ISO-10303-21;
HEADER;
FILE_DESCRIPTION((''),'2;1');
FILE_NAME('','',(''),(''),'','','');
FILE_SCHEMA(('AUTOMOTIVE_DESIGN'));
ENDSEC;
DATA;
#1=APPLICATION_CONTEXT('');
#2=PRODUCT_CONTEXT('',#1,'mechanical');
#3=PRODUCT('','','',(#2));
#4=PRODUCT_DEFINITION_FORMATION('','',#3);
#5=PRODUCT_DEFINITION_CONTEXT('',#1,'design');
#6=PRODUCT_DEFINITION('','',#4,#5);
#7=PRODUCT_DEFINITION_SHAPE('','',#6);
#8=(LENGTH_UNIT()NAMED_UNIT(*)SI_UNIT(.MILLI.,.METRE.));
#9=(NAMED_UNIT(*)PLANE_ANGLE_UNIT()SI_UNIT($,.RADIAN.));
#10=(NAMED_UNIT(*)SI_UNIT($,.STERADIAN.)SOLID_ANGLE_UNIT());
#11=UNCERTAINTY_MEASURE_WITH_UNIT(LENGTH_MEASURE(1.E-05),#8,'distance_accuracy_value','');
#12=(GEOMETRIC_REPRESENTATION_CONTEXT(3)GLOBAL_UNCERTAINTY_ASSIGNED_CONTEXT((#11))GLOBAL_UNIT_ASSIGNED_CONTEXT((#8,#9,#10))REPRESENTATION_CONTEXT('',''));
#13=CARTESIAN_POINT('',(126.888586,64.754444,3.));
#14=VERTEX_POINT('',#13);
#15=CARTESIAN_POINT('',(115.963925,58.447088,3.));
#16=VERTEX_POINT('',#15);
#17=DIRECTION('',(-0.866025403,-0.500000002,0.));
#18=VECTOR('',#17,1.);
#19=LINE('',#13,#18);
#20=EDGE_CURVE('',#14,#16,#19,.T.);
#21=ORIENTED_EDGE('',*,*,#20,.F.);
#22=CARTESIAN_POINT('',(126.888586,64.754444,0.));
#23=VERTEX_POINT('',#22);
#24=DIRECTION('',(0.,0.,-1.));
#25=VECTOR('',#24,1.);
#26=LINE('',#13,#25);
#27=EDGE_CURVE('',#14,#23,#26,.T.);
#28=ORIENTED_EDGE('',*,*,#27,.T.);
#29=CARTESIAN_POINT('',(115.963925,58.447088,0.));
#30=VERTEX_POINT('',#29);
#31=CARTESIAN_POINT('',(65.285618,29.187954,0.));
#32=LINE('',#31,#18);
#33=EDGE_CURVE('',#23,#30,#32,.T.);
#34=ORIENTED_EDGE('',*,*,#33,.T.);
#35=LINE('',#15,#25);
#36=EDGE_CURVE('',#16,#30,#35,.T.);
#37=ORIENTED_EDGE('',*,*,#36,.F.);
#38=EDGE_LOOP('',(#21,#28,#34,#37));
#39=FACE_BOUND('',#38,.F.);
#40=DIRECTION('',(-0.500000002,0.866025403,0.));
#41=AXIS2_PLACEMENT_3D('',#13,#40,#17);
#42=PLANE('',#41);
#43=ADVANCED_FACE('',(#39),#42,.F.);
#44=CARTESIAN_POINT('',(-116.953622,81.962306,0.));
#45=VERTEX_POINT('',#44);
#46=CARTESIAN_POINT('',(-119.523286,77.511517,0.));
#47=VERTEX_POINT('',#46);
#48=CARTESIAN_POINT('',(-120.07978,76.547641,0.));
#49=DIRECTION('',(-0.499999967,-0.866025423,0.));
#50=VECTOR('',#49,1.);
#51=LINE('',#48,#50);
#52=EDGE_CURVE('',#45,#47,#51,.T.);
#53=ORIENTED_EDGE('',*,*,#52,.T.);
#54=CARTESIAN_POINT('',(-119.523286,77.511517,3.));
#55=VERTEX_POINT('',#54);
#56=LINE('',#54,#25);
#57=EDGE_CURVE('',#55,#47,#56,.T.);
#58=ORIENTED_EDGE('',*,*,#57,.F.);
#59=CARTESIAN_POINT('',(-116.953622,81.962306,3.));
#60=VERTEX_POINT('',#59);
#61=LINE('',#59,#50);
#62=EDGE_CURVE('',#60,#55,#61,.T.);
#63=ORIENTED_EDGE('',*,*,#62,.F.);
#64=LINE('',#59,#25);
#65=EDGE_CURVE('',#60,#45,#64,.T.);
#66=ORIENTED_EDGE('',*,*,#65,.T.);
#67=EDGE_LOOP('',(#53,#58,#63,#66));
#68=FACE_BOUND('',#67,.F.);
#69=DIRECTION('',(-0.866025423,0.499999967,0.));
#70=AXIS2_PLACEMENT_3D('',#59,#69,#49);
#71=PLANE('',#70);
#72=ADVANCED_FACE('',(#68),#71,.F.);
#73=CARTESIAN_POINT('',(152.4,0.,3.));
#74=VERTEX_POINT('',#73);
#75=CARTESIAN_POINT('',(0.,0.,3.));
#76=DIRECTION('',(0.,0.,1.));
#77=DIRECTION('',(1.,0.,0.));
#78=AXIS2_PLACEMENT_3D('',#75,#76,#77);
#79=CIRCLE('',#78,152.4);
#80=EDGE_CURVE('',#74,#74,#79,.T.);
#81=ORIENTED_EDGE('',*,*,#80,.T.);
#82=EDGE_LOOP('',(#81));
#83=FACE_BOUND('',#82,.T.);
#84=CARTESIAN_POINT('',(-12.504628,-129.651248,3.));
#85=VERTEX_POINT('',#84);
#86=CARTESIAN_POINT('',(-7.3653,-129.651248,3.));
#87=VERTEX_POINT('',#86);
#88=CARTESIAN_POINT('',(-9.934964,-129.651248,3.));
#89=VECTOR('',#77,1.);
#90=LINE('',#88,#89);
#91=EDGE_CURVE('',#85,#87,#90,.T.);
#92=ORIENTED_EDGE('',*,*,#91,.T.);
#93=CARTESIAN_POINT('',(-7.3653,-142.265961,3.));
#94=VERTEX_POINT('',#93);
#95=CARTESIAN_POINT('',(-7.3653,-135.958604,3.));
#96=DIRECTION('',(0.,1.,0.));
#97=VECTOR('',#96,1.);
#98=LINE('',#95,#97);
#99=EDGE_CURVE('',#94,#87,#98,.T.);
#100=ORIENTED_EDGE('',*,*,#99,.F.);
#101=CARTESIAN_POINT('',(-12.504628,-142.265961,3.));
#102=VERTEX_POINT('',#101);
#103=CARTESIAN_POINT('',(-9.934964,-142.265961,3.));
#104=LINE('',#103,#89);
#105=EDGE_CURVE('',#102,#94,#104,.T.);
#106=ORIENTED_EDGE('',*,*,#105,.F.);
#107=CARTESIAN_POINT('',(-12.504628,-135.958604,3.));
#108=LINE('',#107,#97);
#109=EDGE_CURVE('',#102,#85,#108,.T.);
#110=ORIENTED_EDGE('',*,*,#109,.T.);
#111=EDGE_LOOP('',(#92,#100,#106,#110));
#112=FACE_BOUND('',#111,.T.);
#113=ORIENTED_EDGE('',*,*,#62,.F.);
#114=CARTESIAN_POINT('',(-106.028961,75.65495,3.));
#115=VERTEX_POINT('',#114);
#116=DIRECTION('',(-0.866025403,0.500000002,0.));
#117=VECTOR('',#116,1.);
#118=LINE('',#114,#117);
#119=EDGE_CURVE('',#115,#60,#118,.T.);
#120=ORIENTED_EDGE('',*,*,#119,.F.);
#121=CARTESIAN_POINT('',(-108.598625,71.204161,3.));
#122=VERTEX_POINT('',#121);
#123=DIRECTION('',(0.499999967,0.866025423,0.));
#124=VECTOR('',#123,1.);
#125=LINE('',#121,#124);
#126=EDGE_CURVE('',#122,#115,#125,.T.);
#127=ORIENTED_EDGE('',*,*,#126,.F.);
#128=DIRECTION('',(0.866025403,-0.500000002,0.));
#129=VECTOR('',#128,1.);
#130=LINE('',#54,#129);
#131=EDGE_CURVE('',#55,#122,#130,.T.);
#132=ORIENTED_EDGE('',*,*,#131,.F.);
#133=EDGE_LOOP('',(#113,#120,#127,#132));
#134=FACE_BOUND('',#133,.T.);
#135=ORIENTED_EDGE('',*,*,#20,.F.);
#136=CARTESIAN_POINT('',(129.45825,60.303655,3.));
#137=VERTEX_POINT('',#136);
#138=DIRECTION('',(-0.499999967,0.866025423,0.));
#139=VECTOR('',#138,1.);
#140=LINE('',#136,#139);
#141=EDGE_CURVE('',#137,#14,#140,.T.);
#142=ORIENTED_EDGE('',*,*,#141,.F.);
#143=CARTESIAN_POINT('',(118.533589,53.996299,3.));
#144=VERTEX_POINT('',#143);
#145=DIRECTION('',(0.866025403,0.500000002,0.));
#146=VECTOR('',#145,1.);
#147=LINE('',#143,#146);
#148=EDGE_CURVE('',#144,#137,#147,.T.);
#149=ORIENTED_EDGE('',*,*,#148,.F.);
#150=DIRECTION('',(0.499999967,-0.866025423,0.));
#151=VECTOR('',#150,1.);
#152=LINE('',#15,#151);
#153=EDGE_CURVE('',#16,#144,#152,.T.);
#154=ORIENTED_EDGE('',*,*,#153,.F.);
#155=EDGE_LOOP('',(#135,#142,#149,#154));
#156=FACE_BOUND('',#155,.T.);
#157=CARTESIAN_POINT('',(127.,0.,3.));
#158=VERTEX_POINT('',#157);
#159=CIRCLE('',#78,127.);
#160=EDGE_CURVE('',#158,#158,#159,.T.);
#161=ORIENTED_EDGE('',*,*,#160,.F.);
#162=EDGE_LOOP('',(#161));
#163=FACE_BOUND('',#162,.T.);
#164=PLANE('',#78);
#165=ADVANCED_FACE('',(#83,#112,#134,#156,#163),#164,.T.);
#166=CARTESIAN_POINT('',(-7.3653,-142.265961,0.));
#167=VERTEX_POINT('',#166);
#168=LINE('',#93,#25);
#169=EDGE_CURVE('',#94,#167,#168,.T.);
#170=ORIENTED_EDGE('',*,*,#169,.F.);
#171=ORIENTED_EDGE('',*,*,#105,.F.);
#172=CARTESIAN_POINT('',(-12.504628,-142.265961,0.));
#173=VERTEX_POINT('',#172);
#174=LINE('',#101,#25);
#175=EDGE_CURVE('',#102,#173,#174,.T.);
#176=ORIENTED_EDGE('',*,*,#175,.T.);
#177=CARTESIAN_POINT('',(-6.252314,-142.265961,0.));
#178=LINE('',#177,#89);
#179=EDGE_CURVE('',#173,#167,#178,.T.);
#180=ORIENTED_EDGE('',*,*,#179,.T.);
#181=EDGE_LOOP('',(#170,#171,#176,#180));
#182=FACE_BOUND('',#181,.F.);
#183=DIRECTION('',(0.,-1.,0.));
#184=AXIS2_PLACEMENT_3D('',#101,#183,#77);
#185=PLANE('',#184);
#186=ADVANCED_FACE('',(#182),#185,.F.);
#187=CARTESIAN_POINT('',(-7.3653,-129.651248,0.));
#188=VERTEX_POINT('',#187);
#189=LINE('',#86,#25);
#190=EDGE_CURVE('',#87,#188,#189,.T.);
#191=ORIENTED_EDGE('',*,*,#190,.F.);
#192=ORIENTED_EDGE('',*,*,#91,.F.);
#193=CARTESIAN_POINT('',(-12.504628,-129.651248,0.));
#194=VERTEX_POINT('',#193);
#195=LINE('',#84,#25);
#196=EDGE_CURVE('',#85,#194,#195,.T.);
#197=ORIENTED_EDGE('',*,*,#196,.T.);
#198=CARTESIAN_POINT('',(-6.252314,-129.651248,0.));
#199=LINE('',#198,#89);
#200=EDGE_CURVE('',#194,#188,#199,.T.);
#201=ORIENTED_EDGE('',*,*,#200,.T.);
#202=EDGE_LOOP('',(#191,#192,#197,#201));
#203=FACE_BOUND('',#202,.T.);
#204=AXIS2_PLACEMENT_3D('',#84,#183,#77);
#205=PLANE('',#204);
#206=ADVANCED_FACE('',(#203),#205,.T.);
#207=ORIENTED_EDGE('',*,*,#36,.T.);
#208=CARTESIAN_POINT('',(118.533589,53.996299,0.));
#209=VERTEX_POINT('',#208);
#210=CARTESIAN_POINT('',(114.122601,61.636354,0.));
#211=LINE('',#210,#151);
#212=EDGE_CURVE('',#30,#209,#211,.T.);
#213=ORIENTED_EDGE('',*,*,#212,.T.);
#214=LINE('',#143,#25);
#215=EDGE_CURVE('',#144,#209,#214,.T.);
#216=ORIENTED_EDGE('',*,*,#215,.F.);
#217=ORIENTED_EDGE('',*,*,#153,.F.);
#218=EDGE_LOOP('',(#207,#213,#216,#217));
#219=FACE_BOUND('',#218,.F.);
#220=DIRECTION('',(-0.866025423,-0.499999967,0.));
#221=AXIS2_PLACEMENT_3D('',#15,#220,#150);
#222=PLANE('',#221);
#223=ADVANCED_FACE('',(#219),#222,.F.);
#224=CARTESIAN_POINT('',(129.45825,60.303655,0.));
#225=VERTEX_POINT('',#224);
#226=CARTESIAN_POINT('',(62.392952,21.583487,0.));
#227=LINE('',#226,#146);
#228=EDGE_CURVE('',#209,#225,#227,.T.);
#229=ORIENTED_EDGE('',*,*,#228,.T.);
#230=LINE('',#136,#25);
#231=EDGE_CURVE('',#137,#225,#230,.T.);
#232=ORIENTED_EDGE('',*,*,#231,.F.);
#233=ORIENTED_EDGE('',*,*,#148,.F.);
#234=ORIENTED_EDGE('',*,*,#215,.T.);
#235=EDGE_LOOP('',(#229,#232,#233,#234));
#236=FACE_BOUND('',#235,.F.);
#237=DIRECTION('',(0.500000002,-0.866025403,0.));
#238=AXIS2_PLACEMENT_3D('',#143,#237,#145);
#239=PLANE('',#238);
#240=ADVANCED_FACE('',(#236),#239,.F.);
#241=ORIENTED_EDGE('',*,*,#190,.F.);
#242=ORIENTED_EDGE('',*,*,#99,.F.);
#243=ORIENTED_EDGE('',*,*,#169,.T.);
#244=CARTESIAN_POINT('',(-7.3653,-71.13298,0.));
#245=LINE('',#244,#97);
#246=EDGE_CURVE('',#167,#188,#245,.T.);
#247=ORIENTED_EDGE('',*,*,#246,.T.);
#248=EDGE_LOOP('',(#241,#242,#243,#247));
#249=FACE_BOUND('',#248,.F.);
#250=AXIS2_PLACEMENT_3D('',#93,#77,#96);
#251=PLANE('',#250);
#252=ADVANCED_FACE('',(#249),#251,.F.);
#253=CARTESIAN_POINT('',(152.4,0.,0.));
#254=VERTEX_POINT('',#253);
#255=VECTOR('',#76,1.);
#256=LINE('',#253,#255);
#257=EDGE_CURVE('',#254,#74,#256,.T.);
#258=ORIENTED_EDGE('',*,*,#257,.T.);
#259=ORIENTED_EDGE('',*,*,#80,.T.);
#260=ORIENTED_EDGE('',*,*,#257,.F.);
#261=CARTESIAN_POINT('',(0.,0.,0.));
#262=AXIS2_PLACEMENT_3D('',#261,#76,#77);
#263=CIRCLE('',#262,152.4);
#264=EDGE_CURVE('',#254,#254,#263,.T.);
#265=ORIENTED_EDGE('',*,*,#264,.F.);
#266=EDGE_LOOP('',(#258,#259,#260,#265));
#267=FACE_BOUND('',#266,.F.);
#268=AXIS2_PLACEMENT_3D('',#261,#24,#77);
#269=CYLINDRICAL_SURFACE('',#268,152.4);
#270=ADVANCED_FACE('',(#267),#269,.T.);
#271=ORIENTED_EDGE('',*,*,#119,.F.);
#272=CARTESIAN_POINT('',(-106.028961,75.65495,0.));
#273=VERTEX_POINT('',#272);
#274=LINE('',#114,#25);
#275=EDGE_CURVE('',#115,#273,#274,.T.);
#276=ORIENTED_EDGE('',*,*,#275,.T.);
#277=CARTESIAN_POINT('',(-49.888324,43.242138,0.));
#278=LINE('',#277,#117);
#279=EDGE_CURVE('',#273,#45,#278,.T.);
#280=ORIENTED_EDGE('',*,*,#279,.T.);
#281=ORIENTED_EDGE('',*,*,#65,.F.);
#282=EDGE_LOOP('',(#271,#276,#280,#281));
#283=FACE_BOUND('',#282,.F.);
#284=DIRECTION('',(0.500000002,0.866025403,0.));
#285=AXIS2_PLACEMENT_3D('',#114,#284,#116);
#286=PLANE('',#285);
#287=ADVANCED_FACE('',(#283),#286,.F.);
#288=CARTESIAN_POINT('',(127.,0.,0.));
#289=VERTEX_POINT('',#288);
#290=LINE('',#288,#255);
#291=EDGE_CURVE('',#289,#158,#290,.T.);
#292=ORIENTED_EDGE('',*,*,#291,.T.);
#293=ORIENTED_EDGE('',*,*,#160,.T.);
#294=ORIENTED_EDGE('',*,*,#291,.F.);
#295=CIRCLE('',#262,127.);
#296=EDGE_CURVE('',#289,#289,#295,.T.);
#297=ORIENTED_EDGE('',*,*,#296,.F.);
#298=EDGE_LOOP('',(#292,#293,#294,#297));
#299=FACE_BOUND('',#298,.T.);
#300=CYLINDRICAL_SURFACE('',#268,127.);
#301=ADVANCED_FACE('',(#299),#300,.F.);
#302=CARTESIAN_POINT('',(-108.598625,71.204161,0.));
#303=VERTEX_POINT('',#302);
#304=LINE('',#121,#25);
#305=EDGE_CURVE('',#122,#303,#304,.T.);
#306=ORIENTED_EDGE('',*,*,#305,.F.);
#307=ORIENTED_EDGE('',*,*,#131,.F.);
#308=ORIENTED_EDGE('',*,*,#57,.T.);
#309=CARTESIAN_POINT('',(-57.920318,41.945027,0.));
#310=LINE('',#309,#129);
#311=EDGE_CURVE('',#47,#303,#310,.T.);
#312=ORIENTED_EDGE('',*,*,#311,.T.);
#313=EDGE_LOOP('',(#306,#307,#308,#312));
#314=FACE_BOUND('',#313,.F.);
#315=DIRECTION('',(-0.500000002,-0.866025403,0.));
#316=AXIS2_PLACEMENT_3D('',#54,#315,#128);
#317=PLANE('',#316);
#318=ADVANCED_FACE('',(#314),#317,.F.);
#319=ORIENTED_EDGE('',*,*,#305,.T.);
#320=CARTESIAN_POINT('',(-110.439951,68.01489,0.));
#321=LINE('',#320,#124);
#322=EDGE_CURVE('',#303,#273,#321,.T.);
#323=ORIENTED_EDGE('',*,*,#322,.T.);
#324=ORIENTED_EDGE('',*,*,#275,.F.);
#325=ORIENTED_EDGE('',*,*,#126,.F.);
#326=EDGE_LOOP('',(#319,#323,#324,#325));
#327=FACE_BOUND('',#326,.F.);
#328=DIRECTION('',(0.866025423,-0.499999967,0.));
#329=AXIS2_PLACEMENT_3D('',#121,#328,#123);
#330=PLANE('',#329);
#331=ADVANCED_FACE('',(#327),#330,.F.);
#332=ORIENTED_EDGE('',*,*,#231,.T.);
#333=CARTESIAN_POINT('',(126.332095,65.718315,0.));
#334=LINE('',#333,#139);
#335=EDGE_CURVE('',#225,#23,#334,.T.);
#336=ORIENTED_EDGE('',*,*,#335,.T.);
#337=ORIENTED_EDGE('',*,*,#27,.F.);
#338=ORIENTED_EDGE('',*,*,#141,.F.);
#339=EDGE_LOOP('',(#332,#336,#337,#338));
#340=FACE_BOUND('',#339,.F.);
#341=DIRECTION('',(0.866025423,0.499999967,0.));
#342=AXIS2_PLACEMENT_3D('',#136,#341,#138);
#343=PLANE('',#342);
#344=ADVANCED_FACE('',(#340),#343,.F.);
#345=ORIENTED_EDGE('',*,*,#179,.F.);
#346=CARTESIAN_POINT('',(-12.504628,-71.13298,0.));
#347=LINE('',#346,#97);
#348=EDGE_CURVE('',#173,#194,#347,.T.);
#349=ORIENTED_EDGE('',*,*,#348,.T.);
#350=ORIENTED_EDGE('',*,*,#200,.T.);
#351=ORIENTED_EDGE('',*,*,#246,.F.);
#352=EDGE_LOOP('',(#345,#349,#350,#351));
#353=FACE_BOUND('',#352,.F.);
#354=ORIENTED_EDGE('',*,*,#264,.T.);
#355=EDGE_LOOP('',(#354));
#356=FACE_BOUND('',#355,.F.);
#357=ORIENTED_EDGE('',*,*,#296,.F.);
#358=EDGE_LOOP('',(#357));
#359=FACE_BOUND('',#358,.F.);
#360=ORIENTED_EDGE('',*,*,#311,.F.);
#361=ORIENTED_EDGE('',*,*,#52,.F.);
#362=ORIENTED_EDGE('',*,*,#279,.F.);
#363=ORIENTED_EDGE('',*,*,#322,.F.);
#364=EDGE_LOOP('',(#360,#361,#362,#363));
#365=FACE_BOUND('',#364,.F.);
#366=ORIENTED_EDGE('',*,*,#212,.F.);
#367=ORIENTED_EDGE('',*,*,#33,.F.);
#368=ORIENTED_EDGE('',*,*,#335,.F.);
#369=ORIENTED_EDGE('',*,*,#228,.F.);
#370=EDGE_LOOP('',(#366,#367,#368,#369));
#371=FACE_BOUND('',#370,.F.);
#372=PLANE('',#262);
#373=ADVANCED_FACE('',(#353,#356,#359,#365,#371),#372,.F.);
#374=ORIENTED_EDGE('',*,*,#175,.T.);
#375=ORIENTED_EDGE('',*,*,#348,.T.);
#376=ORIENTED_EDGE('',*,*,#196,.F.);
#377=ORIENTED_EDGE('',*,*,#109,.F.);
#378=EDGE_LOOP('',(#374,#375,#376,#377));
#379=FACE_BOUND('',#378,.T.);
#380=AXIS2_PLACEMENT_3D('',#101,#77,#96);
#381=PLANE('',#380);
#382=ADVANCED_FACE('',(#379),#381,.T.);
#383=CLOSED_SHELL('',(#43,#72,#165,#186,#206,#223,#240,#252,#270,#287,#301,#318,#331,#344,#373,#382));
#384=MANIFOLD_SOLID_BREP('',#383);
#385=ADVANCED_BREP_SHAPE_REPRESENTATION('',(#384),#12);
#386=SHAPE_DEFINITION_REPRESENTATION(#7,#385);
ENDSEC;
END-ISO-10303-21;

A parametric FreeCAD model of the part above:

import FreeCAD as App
import Part
import Sketcher
Q = App.Units.Quantity

doc = App.newDocument("Part")
body = doc.addObject("PartDesign::Body", "Body")

# Sketch on XY plane
sketch1 = doc.addObject("Sketcher::SketchObject", "Sketch")
body.addObject(sketch1)
sketch1.AttachmentSupport = (doc.XY_Plane, [""])
sketch1.MapMode = "FlatFace"
sketch1.addGeometry([
    Part.Circle(App.Vector(0, 0, 0), App.Vector(0, 0, 1), 152.4),
    Part.Circle(App.Vector(0, 0, 0), App.Vector(0, 0, 1), 127),
], False)
sketch1.addConstraint([
    Sketcher.Constraint("Coincident", 0, 3, -1, 1),
    Sketcher.Constraint("Coincident", 1, 3, -1, 1),
    Sketcher.Constraint("Diameter", 0, Q("12 in")),
    Sketcher.Constraint("Diameter", 1, Q("10 in")),
])
pad1 = doc.addObject("PartDesign::Pad", "Pad")
body.addObject(pad1)
pad1.Profile = sketch1
pad1.Length = 3

# Sketch on XY plane
sketch2 = doc.addObject("Sketcher::SketchObject", "Sketch001")
body.addObject(sketch2)
sketch2.AttachmentSupport = (doc.XY_Plane, [""])
sketch2.MapMode = "FlatFace"
sketch2.AttachmentOffset = App.Placement(App.Vector(0, 0, 3), App.Rotation())
sketch2.addGeometry([
    Part.LineSegment(App.Vector(-106.028961, 75.65495, 0), App.Vector(-116.953622, 81.962306, 0)),  # 0
    Part.LineSegment(App.Vector(-116.953622, 81.962306, 0), App.Vector(-119.523286, 77.511517, 0)),  # 1
    Part.LineSegment(App.Vector(-119.523286, 77.511517, 0), App.Vector(-108.598625, 71.204161, 0)),  # 2
    Part.LineSegment(App.Vector(-108.598625, 71.204161, 0), App.Vector(-106.028961, 75.65495, 0)),  # 3
    Part.LineSegment(App.Vector(118.533589, 53.996299, 0), App.Vector(129.45825, 60.303655, 0)),  # 4
    Part.LineSegment(App.Vector(129.45825, 60.303655, 0), App.Vector(126.888586, 64.754444, 0)),  # 5
    Part.LineSegment(App.Vector(126.888586, 64.754444, 0), App.Vector(115.963925, 58.447088, 0)),  # 6
    Part.LineSegment(App.Vector(115.963925, 58.447088, 0), App.Vector(118.533589, 53.996299, 0)),  # 7
    Part.LineSegment(App.Vector(-12.504628, -129.651248, 0), App.Vector(-12.504628, -142.265961, 0)),  # 8
    Part.LineSegment(App.Vector(-12.504628, -142.265961, 0), App.Vector(-7.3653, -142.265961, 0)),  # 9
    Part.LineSegment(App.Vector(-7.3653, -142.265961, 0), App.Vector(-7.3653, -129.651248, 0)),  # 10
    Part.LineSegment(App.Vector(-7.3653, -129.651248, 0), App.Vector(-12.504628, -129.651248, 0)),  # 11
], False)
sketch2.addConstraint([
    Sketcher.Constraint("Coincident", 0, 2, 1, 1),
    Sketcher.Constraint("Coincident", 1, 2, 2, 1),
    Sketcher.Constraint("Coincident", 2, 2, 3, 1),
    Sketcher.Constraint("Coincident", 3, 2, 0, 1),
    Sketcher.Constraint("Coincident", 4, 2, 5, 1),
    Sketcher.Constraint("Coincident", 5, 2, 6, 1),
    Sketcher.Constraint("Coincident", 6, 2, 7, 1),
    Sketcher.Constraint("Coincident", 7, 2, 4, 1),
    Sketcher.Constraint("Coincident", 8, 2, 9, 1),
    Sketcher.Constraint("Coincident", 9, 2, 10, 1),
    Sketcher.Constraint("Coincident", 10, 2, 11, 1),
    Sketcher.Constraint("Coincident", 11, 2, 8, 1),
    Sketcher.Constraint("Vertical", 8),
    Sketcher.Constraint("Horizontal", 9),
    Sketcher.Constraint("Vertical", 10),
    Sketcher.Constraint("Horizontal", 11),
    Sketcher.Constraint("Perpendicular", 0, 1),
    Sketcher.Constraint("Perpendicular", 1, 2),
    Sketcher.Constraint("Perpendicular", 2, 3),
    Sketcher.Constraint("Perpendicular", 4, 5),
    Sketcher.Constraint("Perpendicular", 5, 6),
    Sketcher.Constraint("Perpendicular", 6, 7),
    Sketcher.Constraint("Equal", 2, 4),
    Sketcher.Constraint("Equal", 3, 5),
    Sketcher.Constraint("Angle", 0, Q("150 deg")),
    Sketcher.Constraint("Angle", 4, Q("30 deg")),
    Sketcher.Constraint("DistanceY", -1, 1, 7, 2, Q("53.996299 mm")),
    Sketcher.Constraint("DistanceX", 9, 2, -1, 1, Q("7.3653 mm")),
    Sketcher.Constraint("Distance", 0, Q("12.614712 mm")),
    Sketcher.Constraint("Distance", 1, Q("5.139328 mm")),
    Sketcher.Constraint("DistanceX", 9, 1, 9, 2, Q("5.139328 mm")),
    Sketcher.Constraint("DistanceY", 8, 2, 8, 1, Q("12.614713 mm")),
    Sketcher.Constraint("DistanceX", 0, 2, -1, 1, Q("116.953622 mm")),
    Sketcher.Constraint("DistanceY", -1, 1, 2, 2, Q("71.204161 mm")),
    Sketcher.Constraint("DistanceX", -1, 1, 4, 2, Q("129.45825 mm")),
    Sketcher.Constraint("DistanceY", 8, 2, -1, 1, Q("142.265961 mm")),
])
pocket1 = doc.addObject("PartDesign::Pocket", "Pocket")
body.addObject(pocket1)
pocket1.Profile = sketch2
pocket1.Length = Q("1 in")

doc.recompute()
